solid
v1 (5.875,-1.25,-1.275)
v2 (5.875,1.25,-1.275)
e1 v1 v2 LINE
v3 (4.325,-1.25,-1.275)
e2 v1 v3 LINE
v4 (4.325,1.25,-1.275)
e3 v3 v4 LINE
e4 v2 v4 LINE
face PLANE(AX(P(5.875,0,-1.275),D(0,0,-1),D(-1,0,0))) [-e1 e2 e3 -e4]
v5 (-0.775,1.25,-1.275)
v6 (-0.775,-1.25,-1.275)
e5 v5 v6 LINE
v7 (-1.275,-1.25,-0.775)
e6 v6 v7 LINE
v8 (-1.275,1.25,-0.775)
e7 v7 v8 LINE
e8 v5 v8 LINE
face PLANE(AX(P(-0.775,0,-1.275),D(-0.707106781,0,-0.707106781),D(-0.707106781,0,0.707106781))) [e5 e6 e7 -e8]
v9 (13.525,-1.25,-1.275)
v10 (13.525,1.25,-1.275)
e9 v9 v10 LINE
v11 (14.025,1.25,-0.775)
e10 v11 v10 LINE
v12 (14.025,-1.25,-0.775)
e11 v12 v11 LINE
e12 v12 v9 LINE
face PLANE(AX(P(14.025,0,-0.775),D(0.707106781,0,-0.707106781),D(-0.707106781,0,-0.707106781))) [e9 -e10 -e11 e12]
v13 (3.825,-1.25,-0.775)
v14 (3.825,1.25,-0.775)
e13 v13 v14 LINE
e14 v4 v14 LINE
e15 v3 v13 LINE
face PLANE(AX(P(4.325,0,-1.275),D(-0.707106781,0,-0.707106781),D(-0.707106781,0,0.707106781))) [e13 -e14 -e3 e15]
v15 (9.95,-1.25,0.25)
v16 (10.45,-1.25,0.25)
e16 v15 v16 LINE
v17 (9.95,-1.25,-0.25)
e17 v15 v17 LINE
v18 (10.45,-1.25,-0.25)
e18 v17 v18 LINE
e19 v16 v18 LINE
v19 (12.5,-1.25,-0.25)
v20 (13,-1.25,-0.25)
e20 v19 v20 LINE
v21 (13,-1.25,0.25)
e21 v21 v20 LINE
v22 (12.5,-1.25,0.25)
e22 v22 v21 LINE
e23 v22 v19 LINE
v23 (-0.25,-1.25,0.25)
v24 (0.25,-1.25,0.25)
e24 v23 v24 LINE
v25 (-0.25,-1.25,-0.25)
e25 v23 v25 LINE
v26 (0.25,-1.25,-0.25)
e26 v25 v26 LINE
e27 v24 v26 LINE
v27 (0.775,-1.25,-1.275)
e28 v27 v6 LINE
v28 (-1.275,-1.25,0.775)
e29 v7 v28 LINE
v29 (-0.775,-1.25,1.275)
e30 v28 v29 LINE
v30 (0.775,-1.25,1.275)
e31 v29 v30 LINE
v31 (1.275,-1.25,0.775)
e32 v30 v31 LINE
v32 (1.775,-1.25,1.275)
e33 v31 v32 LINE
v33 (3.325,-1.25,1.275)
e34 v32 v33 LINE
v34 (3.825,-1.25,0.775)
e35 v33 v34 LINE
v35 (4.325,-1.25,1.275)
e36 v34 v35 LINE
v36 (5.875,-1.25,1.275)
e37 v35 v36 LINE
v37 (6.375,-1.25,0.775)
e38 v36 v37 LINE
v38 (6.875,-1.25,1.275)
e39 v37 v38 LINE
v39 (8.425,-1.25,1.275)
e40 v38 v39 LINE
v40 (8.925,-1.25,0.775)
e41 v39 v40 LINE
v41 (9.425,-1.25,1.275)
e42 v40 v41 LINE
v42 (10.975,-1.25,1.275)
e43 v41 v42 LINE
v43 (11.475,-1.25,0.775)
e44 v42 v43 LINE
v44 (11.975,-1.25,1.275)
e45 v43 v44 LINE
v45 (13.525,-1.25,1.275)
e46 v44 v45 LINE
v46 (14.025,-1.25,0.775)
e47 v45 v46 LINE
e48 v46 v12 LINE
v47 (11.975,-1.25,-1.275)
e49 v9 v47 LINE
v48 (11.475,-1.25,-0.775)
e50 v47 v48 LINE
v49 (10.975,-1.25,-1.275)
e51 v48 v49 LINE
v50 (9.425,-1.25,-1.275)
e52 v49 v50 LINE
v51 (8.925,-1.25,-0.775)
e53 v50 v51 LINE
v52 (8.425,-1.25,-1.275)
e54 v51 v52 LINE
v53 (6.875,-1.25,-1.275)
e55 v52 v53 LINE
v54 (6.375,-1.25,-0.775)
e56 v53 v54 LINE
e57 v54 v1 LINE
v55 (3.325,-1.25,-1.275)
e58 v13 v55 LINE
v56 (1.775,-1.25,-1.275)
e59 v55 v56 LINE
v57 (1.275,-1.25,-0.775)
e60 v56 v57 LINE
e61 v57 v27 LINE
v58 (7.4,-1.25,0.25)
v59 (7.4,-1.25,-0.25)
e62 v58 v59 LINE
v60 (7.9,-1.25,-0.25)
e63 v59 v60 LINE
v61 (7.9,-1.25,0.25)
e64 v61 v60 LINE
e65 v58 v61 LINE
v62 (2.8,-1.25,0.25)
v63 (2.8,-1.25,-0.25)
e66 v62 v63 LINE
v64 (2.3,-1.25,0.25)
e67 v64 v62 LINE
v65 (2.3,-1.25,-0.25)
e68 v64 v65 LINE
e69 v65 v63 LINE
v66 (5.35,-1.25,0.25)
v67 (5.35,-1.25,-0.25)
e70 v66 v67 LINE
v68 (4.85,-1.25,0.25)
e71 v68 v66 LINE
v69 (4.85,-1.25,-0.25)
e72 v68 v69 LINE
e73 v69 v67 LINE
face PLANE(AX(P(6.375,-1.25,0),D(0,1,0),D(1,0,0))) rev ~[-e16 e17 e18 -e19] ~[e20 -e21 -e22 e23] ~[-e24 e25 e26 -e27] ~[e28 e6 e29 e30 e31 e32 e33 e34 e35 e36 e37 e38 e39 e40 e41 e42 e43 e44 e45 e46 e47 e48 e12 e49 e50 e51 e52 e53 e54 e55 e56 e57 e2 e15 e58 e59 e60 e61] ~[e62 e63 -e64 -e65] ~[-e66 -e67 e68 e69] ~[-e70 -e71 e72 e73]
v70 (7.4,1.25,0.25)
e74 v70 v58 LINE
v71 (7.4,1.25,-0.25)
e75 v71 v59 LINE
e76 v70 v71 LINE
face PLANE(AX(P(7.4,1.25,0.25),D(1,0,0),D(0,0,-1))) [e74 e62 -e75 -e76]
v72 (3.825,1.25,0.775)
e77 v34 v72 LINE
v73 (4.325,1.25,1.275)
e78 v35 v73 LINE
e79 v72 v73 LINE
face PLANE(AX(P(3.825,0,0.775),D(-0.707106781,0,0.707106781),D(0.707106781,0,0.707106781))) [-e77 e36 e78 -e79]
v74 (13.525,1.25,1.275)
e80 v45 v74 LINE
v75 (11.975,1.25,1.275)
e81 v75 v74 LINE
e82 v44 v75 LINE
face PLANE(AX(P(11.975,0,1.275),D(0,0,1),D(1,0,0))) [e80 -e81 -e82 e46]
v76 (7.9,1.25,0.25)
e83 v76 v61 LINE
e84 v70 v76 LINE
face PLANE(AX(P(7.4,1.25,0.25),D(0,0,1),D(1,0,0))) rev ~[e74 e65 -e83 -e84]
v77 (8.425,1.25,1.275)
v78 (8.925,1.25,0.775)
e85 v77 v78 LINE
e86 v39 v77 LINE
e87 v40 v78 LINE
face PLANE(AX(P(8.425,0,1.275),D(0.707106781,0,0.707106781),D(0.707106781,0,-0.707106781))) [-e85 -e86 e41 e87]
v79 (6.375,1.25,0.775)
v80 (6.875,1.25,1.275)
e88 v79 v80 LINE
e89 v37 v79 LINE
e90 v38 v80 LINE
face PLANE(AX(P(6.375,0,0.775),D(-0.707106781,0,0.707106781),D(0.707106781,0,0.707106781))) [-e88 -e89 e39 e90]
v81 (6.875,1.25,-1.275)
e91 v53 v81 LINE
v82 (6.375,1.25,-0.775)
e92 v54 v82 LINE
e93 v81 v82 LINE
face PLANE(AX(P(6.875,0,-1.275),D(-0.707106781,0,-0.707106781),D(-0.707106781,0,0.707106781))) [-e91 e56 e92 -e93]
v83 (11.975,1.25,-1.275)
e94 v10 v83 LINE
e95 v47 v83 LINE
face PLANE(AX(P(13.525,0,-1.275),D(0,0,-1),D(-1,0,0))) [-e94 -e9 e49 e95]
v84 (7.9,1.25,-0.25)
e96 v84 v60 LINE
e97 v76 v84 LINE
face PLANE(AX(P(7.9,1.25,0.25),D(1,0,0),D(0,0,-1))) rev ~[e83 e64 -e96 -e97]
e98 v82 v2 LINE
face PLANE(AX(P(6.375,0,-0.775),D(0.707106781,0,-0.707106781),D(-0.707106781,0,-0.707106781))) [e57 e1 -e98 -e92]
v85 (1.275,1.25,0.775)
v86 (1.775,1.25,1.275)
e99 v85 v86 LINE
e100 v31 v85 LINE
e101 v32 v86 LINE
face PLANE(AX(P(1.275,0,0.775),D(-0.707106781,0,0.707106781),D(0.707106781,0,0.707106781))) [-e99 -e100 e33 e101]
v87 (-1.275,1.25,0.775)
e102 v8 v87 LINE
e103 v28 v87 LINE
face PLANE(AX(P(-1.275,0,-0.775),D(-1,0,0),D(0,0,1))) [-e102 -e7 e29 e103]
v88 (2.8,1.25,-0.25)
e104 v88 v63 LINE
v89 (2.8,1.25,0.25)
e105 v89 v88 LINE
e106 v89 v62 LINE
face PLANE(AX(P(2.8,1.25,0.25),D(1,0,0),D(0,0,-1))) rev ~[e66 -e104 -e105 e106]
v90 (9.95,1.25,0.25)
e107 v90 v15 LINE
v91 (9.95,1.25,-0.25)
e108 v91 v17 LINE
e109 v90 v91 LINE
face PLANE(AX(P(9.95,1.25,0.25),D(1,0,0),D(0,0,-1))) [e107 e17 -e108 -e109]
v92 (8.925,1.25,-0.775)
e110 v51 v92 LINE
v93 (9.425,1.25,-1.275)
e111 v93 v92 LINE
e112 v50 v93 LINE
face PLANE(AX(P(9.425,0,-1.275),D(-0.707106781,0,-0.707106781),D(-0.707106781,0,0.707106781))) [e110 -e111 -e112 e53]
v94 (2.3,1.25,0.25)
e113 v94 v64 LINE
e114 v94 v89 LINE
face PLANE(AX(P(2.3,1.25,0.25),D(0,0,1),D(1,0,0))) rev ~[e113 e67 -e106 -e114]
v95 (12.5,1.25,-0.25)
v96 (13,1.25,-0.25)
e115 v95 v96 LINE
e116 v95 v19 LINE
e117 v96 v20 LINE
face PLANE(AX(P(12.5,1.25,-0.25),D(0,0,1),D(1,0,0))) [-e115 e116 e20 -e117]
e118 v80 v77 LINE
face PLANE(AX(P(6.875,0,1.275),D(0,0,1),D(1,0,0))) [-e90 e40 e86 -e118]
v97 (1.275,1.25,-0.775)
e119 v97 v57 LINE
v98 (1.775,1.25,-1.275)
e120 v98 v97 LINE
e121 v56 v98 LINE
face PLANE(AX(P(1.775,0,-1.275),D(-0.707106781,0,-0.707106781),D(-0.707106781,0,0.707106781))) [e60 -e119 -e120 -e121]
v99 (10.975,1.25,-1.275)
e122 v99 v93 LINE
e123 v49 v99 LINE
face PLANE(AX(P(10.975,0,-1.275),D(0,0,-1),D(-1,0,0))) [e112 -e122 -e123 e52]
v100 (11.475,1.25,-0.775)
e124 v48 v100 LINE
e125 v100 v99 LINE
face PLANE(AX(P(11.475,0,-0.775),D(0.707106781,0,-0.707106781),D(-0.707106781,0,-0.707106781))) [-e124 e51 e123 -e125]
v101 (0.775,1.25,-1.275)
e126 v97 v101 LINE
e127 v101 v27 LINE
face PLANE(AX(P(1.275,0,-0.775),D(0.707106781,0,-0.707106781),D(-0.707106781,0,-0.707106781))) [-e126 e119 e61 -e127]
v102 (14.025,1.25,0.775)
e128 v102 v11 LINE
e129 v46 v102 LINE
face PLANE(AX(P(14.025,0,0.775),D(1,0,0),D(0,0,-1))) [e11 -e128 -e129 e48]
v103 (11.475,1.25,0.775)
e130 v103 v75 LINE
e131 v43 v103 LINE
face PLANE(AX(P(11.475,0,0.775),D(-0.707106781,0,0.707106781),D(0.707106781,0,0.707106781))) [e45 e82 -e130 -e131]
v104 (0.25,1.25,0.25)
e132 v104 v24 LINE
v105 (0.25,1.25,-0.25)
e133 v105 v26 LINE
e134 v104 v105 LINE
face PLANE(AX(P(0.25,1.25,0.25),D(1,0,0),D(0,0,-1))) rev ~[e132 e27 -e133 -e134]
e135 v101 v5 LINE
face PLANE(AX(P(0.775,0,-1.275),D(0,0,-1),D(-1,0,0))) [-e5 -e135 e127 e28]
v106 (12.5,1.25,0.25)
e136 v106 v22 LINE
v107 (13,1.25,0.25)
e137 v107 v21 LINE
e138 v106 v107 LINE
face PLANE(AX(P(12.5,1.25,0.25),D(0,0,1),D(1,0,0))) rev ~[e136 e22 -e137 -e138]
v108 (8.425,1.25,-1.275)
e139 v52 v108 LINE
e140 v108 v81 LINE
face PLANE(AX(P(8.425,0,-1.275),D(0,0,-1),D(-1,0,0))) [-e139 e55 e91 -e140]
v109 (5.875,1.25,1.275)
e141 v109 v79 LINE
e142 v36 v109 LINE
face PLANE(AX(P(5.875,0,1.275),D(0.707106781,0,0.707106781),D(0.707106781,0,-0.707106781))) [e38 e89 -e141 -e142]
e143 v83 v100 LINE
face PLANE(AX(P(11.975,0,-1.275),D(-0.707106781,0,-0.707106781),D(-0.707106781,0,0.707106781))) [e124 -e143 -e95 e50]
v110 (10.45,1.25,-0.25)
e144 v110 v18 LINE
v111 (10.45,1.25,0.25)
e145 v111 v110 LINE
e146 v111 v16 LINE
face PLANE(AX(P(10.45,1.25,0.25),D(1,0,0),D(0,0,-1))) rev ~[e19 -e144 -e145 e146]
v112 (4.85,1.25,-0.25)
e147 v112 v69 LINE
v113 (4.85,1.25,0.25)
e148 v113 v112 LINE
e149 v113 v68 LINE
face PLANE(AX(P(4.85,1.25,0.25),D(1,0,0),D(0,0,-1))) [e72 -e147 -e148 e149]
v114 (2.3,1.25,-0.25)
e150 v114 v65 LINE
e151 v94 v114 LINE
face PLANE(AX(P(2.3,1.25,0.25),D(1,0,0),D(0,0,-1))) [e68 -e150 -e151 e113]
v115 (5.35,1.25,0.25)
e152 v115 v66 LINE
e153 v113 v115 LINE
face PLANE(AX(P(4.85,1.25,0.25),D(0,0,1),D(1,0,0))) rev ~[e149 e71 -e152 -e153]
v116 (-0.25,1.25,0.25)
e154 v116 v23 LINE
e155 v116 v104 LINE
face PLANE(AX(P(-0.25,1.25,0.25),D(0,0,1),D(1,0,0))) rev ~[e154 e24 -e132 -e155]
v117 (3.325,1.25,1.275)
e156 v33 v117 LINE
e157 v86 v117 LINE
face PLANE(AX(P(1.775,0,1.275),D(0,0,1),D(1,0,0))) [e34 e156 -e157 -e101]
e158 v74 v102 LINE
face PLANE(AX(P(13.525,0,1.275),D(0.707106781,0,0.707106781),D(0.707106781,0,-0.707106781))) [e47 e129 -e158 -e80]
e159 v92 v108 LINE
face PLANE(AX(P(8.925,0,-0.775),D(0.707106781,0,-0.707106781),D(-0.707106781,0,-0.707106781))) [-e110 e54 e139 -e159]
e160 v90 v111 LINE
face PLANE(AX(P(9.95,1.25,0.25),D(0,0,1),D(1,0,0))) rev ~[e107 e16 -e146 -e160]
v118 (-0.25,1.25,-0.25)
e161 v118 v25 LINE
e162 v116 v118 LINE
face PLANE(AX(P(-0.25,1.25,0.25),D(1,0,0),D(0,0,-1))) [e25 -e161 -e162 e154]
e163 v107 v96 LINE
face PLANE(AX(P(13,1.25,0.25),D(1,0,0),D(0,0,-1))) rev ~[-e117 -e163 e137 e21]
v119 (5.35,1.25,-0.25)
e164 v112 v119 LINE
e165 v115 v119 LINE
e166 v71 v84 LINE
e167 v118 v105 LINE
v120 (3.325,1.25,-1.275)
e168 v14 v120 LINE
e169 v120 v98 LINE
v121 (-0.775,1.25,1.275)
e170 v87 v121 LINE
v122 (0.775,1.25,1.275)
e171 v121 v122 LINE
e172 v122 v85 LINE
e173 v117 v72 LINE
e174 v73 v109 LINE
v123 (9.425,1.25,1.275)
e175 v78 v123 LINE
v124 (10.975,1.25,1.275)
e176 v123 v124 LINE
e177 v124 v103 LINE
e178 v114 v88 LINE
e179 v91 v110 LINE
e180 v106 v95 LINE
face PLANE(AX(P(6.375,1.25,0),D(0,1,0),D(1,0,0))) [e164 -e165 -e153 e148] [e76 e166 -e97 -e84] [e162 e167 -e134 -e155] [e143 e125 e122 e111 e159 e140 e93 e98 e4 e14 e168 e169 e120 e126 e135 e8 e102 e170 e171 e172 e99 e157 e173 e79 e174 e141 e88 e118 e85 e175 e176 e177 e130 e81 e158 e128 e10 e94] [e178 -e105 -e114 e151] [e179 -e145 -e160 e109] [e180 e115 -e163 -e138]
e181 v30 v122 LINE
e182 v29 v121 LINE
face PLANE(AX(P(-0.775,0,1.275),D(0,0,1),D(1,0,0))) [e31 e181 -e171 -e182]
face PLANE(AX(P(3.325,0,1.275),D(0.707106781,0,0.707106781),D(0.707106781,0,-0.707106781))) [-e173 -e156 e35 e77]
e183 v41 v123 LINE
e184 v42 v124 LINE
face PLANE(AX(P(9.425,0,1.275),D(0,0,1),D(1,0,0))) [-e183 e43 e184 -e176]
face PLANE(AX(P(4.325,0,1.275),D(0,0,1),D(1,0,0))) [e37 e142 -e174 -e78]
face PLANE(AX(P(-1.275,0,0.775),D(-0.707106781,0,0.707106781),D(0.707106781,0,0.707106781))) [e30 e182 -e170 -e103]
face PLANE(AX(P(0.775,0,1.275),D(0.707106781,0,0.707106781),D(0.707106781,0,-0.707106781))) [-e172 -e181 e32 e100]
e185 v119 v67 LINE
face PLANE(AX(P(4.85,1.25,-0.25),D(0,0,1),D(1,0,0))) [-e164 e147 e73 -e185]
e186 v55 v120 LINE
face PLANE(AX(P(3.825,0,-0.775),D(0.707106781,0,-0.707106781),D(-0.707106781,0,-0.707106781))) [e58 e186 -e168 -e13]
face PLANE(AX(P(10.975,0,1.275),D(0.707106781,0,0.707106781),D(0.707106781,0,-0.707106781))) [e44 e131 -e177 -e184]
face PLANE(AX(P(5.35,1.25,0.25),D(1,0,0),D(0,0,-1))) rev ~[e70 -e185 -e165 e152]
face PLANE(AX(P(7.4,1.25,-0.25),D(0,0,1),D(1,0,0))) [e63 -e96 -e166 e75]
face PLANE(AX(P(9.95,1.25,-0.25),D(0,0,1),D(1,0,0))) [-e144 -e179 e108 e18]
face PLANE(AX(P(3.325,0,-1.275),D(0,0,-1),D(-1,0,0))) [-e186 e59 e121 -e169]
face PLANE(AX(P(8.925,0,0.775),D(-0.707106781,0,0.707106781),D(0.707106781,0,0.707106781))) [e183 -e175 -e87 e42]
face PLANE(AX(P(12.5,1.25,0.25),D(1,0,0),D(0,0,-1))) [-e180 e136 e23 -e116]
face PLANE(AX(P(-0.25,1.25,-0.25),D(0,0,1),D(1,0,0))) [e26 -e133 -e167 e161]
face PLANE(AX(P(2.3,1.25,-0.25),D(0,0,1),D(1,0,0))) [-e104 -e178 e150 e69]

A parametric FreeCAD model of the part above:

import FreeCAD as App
import Part
import Sketcher
from FreeCAD import Vector
Q = App.Units.Quantity


def add_polygon(sketch, points):
    """Adds a closed chain of lines whose ends are joined by coincident constraints."""
    first, n = sketch.GeometryCount, len(points)
    for a, b in zip(points, points[1:] + points[:1]):
        sketch.addGeometry(Part.LineSegment(App.Vector(*a, 0), App.Vector(*b, 0)), False)
    for i in range(n):
        sketch.addConstraint(Sketcher.Constraint("Coincident", first + i, 2, first + (i + 1) % n, 1))

doc = App.newDocument("Part")
body = doc.addObject("PartDesign::Body", "Body")

# Sketch on XZ plane
sketch1 = doc.addObject("Sketcher::SketchObject", "Sketch")
body.addObject(sketch1)
sketch1.AttachmentSupport = (doc.XZ_Plane, [""])
sketch1.MapMode = "FlatFace"
add_polygon(sketch1, [(-0.775, -1.275), (-1.275, -0.775), (-1.275, 0.775), (-0.775, 1.275), (0.775, 1.275), (1.275, 0.775), (1.775, 1.275), (3.325, 1.275), (3.825, 0.775), (4.325, 1.275), (5.875, 1.275), (6.375, 0.775), (6.875, 1.275), (8.425, 1.275), (8.925, 0.775), (9.425, 1.275), (10.975, 1.275), (11.475, 0.775), (11.975, 1.275), (13.525, 1.275), (14.025, 0.775), (14.025, -0.775), (13.525, -1.275), (11.975, -1.275), (11.475, -0.775), (10.975, -1.275), (9.425, -1.275), (8.925, -0.775), (8.425, -1.275), (6.875, -1.275), (6.375, -0.775), (5.875, -1.275), (4.325, -1.275), (3.825, -0.775), (3.325, -1.275), (1.775, -1.275), (1.275, -0.775), (0.775, -1.275)])  # lines 0-37
sketch1.addConstraint(Sketcher.Constraint("Vertical", 1))
sketch1.addConstraint(Sketcher.Constraint("Horizontal", 3))
sketch1.addConstraint(Sketcher.Constraint("Horizontal", 6))
sketch1.addConstraint(Sketcher.Constraint("Horizontal", 9))
sketch1.addConstraint(Sketcher.Constraint("Horizontal", 12))
sketch1.addConstraint(Sketcher.Constraint("Horizontal", 15))
sketch1.addConstraint(Sketcher.Constraint("Horizontal", 18))
sketch1.addConstraint(Sketcher.Constraint("Vertical", 20))
sketch1.addConstraint(Sketcher.Constraint("Horizontal", 22))
sketch1.addConstraint(Sketcher.Constraint("Horizontal", 25))
sketch1.addConstraint(Sketcher.Constraint("Horizontal", 28))
sketch1.addConstraint(Sketcher.Constraint("Horizontal", 31))
sketch1.addConstraint(Sketcher.Constraint("Horizontal", 34))
sketch1.addConstraint(Sketcher.Constraint("Horizontal", 37))
sketch1.addConstraint(Sketcher.Constraint("Symmetric", 0, 2, 4, 2, -1, 1))
sketch1.addConstraint(Sketcher.Constraint("Symmetric", 1, 2, 35, 2, -1, 1))
sketch1.addConstraint(Sketcher.Constraint("Symmetric", 2, 2, 36, 2, -1, 1))
sketch1.addConstraint(Sketcher.Constraint("Symmetric", 18, 2, 21, 2, -1))
sketch1.addConstraint(Sketcher.Constraint("Symmetric", 16, 2, 23, 2, -1))
sketch1.addConstraint(Sketcher.Constraint("Symmetric", 15, 2, 24, 2, -1))
sketch1.addConstraint(Sketcher.Constraint("Symmetric", 13, 2, 26, 2, -1))
sketch1.addConstraint(Sketcher.Constraint("Symmetric", 12, 2, 27, 2, -1))
sketch1.addConstraint(Sketcher.Constraint("Symmetric", 10, 2, 29, 2, -1))
sketch1.addConstraint(Sketcher.Constraint("Symmetric", 9, 2, 30, 2, -1))
sketch1.addConstraint(Sketcher.Constraint("Symmetric", 7, 2, 32, 2, -1))
sketch1.addConstraint(Sketcher.Constraint("Symmetric", 6, 2, 33, 2, -1))
sketch1.addConstraint(Sketcher.Constraint("Perpendicular", 0, 2))
sketch1.addConstraint(Sketcher.Constraint("Perpendicular", 2, 4))
sketch1.addConstraint(Sketcher.Constraint("Perpendicular", 4, 5))
sketch1.addConstraint(Sketcher.Constraint("Perpendicular", 5, 7))
sketch1.addConstraint(Sketcher.Constraint("Perpendicular", 7, 8))
sketch1.addConstraint(Sketcher.Constraint("Perpendicular", 8, 10))
sketch1.addConstraint(Sketcher.Constraint("Perpendicular", 10, 11))
sketch1.addConstraint(Sketcher.Constraint("Perpendicular", 11, 13))
sketch1.addConstraint(Sketcher.Constraint("Perpendicular", 13, 14))
sketch1.addConstraint(Sketcher.Constraint("Perpendicular", 14, 16))
sketch1.addConstraint(Sketcher.Constraint("Perpendicular", 16, 17))
sketch1.addConstraint(Sketcher.Constraint("Perpendicular", 17, 19))
sketch1.addConstraint(Sketcher.Constraint("Perpendicular", 19, 21))
sketch1.addConstraint(Sketcher.Constraint("Perpendicular", 21, 23))
sketch1.addConstraint(Sketcher.Constraint("Perpendicular", 23, 24))
sketch1.addConstraint(Sketcher.Constraint("Perpendicular", 24, 26))
sketch1.addConstraint(Sketcher.Constraint("Perpendicular", 27, 29))
sketch1.addConstraint(Sketcher.Constraint("Perpendicular", 30, 32))
sketch1.addConstraint(Sketcher.Constraint("Perpendicular", 33, 35))
sketch1.addConstraint(Sketcher.Constraint("Horizontal", 1, 2, 4, 2))
sketch1.addConstraint(Sketcher.Constraint("Horizontal", 3, 2, 5, 2))
sketch1.addConstraint(Sketcher.Constraint("Horizontal", 4, 2, 7, 2))
sketch1.addConstraint(Sketcher.Constraint("Horizontal", 6, 2, 8, 2))
sketch1.addConstraint(Sketcher.Constraint("Horizontal", 7, 2, 10, 2))
sketch1.addConstraint(Sketcher.Constraint("Horizontal", 9, 2, 11, 2))
sketch1.addConstraint(Sketcher.Constraint("Horizontal", 10, 2, 13, 2))
sketch1.addConstraint(Sketcher.Constraint("Horizontal", 12, 2, 14, 2))
sketch1.addConstraint(Sketcher.Constraint("Horizontal", 13, 2, 16, 2))
sketch1.addConstraint(Sketcher.Constraint("Horizontal", 15, 2, 17, 2))
sketch1.addConstraint(Sketcher.Constraint("Horizontal", 16, 2, 19, 2))
sketch1.addConstraint(Sketcher.Constraint("Equal", 3, 6))
sketch1.addConstraint(Sketcher.Constraint("Equal", 6, 9))
sketch1.addConstraint(Sketcher.Constraint("Equal", 9, 12))
sketch1.addConstraint(Sketcher.Constraint("Equal", 12, 15))
sketch1.addConstraint(Sketcher.Constraint("Equal", 15, 18))
sketch1.addConstraint(Sketcher.Constraint("Equal", 37, 1))
sketch1.addConstraint(Sketcher.Constraint("DistanceX", 3, 2, 5, 2, Q("1 mm")))
sketch1.addConstraint(Sketcher.Constraint("DistanceX", 3, 1, 3, 2, Q("1.55 mm")))
pad1 = doc.addObject("PartDesign::Pad", "Pad")
body.addObject(pad1)
pad1.Profile = sketch1
pad1.Length = 2.5
pad1.Midplane = True

# Sketch on XZ plane
sketch2 = doc.addObject("Sketcher::SketchObject", "Sketch001")
body.addObject(sketch2)
sketch2.AttachmentSupport = (doc.XZ_Plane, [""])
sketch2.MapMode = "FlatFace"
sketch2.AttachmentOffset = App.Placement(Vector(0, 0, -1.25), App.Rotation())
add_polygon(sketch2, [(2.3, -0.25), (2.3, 0.25), (2.8, 0.25), (2.8, -0.25)])  # lines 0-3
add_polygon(sketch2, [(-0.25, -0.25), (-0.25, 0.25), (0.25, 0.25), (0.25, -0.25)])  # lines 4-7
add_polygon(sketch2, [(4.85, -0.25), (4.85, 0.25), (5.35, 0.25), (5.35, -0.25)])  # lines 8-11
add_polygon(sketch2, [(7.4, -0.25), (7.4, 0.25), (7.9, 0.25), (7.9, -0.25)])  # lines 12-15
add_polygon(sketch2, [(9.95, -0.25), (9.95, 0.25), (10.45, 0.25), (10.45, -0.25)])  # lines 16-19
add_polygon(sketch2, [(12.5, -0.25), (12.5, 0.25), (13, 0.25), (13, -0.25)])  # lines 20-23
sketch2.addConstraint(Sketcher.Constraint("Vertical", 0))
sketch2.addConstraint(Sketcher.Constraint("Horizontal", 1))
sketch2.addConstraint(Sketcher.Constraint("Vertical", 2))
sketch2.addConstraint(Sketcher.Constraint("Horizontal", 3))
sketch2.addConstraint(Sketcher.Constraint("Vertical", 4))
sketch2.addConstraint(Sketcher.Constraint("Horizontal", 5))
sketch2.addConstraint(Sketcher.Constraint("Vertical", 6))
sketch2.addConstraint(Sketcher.Constraint("Horizontal", 7))
sketch2.addConstraint(Sketcher.Constraint("Vertical", 8))
sketch2.addConstraint(Sketcher.Constraint("Horizontal", 9))
sketch2.addConstraint(Sketcher.Constraint("Vertical", 10))
sketch2.addConstraint(Sketcher.Constraint("Horizontal", 11))
sketch2.addConstraint(Sketcher.Constraint("Vertical", 12))
sketch2.addConstraint(Sketcher.Constraint("Horizontal", 13))
sketch2.addConstraint(Sketcher.Constraint("Vertical", 14))
sketch2.addConstraint(Sketcher.Constraint("Horizontal", 15))
sketch2.addConstraint(Sketcher.Constraint("Vertical", 16))
sketch2.addConstraint(Sketcher.Constraint("Horizontal", 17))
sketch2.addConstraint(Sketcher.Constraint("Vertical", 18))
sketch2.addConstraint(Sketcher.Constraint("Horizontal", 19))
sketch2.addConstraint(Sketcher.Constraint("Vertical", 20))
sketch2.addConstraint(Sketcher.Constraint("Horizontal", 21))
sketch2.addConstraint(Sketcher.Constraint("Vertical", 22))
sketch2.addConstraint(Sketcher.Constraint("Horizontal", 23))
sketch2.addConstraint(Sketcher.Constraint("Symmetric", 4, 2, 6, 2, -1, 1))
sketch2.addConstraint(Sketcher.Constraint("Horizontal", 1, 2, 4, 2))
sketch2.addConstraint(Sketcher.Constraint("Horizontal", 3, 2, 6, 2))
sketch2.addConstraint(Sketcher.Constraint("Horizontal", 5, 2, 8, 2))
sketch2.addConstraint(Sketcher.Constraint("Horizontal", 7, 2, 10, 2))
sketch2.addConstraint(Sketcher.Constraint("Horizontal", 9, 2, 12, 2))
sketch2.addConstraint(Sketcher.Constraint("Horizontal", 11, 2, 14, 2))
sketch2.addConstraint(Sketcher.Constraint("Horizontal", 13, 2, 16, 2))
sketch2.addConstraint(Sketcher.Constraint("Horizontal", 15, 2, 18, 2))
sketch2.addConstraint(Sketcher.Constraint("Horizontal", 17, 2, 20, 2))
sketch2.addConstraint(Sketcher.Constraint("Horizontal", 19, 2, 22, 2))
sketch2.addConstraint(Sketcher.Constraint("Equal", 3, 5))
sketch2.addConstraint(Sketcher.Constraint("Equal", 7, 9))
sketch2.addConstraint(Sketcher.Constraint("Equal", 11, 13))
sketch2.addConstraint(Sketcher.Constraint("Equal", 15, 17))
sketch2.addConstraint(Sketcher.Constraint("Equal", 19, 21))
sketch2.addConstraint(Sketcher.Constraint("Equal", 23, 0))
sketch2.addConstraint(Sketcher.Constraint("DistanceX", 1, 1, 1, 2, Q("0.5 mm")))
sketch2.addConstraint(Sketcher.Constraint("DistanceX", -1, 1, 21, 2, Q("13 mm")))
sketch2.addConstraint(Sketcher.Constraint("DistanceX", -1, 1, 0, 2, Q("2.3 mm")))
sketch2.addConstraint(Sketcher.Constraint("DistanceX", -1, 1, 12, 2, Q("7.4 mm")))
sketch2.addConstraint(Sketcher.Constraint("DistanceX", 5, 2, 8, 2, Q("4.6 mm")))
sketch2.addConstraint(Sketcher.Constraint("DistanceX", 9, 2, 16, 2, Q("4.6 mm")))
pocket1 = doc.addObject("PartDesign::Pocket", "Pocket")
body.addObject(pocket1)
pocket1.Profile = sketch2
pocket1.Type = "ThroughAll"
pocket1.Reversed = True

doc.recompute()
